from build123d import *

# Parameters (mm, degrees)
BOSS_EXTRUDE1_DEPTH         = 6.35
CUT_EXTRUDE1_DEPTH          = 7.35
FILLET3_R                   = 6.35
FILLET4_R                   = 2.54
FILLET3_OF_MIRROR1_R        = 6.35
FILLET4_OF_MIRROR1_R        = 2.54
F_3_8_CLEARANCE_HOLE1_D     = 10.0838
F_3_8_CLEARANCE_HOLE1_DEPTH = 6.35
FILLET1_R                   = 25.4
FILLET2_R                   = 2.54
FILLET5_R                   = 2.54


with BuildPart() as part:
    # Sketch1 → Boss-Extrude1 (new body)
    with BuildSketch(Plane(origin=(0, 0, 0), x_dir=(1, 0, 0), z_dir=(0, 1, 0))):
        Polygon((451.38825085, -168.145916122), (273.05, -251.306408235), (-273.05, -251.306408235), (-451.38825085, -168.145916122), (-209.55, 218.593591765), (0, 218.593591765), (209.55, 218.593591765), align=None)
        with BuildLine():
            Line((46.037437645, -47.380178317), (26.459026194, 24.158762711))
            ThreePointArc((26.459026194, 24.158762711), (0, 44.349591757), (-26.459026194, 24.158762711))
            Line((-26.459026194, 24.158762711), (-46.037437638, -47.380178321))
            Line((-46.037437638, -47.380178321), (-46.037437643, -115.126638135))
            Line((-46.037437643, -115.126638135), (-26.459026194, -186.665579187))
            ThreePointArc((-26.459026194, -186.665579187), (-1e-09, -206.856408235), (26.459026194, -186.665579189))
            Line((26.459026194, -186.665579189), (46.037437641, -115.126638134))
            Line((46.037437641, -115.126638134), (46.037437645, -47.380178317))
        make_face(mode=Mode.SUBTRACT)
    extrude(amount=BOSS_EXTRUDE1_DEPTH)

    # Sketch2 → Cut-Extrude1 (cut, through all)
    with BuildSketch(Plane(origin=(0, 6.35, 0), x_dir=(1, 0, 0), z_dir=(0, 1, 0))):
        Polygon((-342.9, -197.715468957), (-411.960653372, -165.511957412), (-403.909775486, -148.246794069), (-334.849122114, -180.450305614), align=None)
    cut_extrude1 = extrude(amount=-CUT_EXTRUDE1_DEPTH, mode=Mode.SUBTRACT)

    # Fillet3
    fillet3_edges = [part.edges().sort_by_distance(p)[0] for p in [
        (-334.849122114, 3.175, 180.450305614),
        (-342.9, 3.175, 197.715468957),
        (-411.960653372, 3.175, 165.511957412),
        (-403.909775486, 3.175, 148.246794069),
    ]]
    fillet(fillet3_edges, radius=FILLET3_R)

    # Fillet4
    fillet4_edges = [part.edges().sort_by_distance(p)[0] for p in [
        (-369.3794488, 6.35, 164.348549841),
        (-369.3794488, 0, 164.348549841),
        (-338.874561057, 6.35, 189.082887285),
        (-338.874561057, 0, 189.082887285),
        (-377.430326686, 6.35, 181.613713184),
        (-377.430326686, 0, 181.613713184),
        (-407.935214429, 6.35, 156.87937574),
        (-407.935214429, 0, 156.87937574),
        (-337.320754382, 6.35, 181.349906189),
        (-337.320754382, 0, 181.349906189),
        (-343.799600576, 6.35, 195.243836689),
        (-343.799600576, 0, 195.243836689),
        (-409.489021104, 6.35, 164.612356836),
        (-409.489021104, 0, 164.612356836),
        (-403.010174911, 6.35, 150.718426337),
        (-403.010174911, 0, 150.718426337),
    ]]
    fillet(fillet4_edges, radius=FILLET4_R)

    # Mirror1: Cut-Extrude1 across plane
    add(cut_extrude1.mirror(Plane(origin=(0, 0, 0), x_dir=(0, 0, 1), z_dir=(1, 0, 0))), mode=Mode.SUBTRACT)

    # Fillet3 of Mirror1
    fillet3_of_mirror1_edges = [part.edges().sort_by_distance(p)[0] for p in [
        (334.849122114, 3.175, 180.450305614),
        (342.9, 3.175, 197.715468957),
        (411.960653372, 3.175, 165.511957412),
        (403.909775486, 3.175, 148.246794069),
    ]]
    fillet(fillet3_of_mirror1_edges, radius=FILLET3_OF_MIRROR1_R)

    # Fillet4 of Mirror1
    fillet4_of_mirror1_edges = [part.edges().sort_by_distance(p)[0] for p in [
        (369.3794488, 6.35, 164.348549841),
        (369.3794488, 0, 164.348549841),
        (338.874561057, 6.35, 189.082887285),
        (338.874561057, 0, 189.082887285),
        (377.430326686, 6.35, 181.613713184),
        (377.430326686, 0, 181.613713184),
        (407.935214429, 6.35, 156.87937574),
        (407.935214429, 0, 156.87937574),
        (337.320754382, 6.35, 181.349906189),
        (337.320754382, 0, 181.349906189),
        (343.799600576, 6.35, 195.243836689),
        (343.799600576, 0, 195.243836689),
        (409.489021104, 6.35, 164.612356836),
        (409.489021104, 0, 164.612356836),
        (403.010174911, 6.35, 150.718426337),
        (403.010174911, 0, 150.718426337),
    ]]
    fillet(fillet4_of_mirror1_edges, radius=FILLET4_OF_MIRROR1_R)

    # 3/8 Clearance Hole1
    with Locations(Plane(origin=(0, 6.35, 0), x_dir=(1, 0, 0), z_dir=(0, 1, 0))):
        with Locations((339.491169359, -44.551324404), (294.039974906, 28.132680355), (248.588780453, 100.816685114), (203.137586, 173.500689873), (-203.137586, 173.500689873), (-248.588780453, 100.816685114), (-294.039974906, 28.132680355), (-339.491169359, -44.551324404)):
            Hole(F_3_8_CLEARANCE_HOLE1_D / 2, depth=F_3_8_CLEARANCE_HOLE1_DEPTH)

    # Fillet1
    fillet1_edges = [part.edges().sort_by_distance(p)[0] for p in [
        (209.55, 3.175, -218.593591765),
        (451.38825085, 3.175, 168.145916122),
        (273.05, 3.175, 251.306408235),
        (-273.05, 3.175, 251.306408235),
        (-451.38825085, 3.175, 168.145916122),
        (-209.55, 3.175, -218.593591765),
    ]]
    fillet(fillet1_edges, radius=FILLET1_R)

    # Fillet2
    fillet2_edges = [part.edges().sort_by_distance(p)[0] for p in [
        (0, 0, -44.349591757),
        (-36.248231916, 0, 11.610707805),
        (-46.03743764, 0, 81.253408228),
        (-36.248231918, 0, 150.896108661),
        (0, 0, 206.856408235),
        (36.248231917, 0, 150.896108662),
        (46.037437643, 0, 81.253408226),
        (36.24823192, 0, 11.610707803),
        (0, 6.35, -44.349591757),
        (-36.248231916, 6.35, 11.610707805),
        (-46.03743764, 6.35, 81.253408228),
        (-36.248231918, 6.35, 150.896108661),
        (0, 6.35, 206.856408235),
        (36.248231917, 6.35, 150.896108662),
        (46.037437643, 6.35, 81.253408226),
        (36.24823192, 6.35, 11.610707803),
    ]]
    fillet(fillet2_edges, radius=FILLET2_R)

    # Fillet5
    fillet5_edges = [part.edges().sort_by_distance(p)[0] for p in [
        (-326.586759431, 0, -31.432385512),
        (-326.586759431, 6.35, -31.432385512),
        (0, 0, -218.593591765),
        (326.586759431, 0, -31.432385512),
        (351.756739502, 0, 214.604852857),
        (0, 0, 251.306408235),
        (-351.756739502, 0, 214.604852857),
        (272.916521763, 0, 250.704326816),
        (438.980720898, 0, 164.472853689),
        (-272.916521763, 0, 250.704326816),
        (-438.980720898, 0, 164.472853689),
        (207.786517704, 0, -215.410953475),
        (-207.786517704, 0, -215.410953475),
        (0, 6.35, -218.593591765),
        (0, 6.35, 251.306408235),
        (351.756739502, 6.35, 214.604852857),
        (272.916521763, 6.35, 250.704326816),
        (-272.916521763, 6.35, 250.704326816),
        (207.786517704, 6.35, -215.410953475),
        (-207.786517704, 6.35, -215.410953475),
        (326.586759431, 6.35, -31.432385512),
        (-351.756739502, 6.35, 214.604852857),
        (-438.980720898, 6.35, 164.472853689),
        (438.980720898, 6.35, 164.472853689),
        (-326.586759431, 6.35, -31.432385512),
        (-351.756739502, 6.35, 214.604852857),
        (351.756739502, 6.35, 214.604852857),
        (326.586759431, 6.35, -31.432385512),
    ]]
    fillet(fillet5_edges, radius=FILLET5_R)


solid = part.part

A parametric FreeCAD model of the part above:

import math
import FreeCAD as App
import Part
import Sketcher
Q = App.Units.Quantity


def edges_at(feature, points):
    """Names of the edges that pass closest to the given points."""
    edges = feature.Shape.Edges
    near = lambda p: min(range(len(edges)), key=lambda i: edges[i].distToShape(Part.Vertex(*p))[0])
    return sorted({f"Edge{near(p) + 1}" for p in points})

doc = App.newDocument("Part")
params = doc.addObject("Spreadsheet::Sheet", "Params")
for row, (alias, value) in enumerate([
    ("sketch1_radius", "1.08 in"),
    ("sketch1_width", "16.5 in"),
    ("sketch1_width2", "21.5 in"),
    ("pad1_length", "0.25 in"),
    ("sketch2_length", "3 in"),
    ("sketch2_length2", "0.75 in"),
    ("fillet_radius", "0.25 in"),
    ("fillet2_radius", "0.1 in"),
    ("fillet3_radius", "0.25 in"),
    ("fillet4_radius", "0.1 in"),
    ("sketch3_diameter", "0.397 in"),
    ("hole_diameter", "0.397 in"),
    ("hole_depth", "0.25 in"),
    ("fillet5_radius", "1 in"),
    ("fillet6_radius", "0.1 in"),
    ("fillet7_radius", "0.1 in"),
], start=1):
    params.set(f"A{row}", alias)
    params.set(f"B{row}", "=" + value)
    params.setAlias(f"B{row}", alias)

body = doc.addObject("PartDesign::Body", "Body")

sketch1 = body.newObject("Sketcher::SketchObject", "Sketch")
sketch1.AttachmentSupport = (doc.getObject("XZ_Plane"), [""])
sketch1.MapMode = "FlatFace"
sketch1.addGeometry([
    Part.LineSegment(App.Vector(273.05, 251.306408, 0), App.Vector(451.388251, 168.145916, 0)),
    Part.LineSegment(App.Vector(451.388251, 168.145916, 0), App.Vector(209.55, -218.593592, 0)),
    Part.LineSegment(App.Vector(209.55, -218.593592, 0), App.Vector(-209.55, -218.593592, 0)),
    Part.LineSegment(App.Vector(-209.55, -218.593592, 0), App.Vector(-451.388251, 168.145916, 0)),
    Part.LineSegment(App.Vector(-451.388251, 168.145916, 0), App.Vector(-273.05, 251.306408, 0)),
    Part.LineSegment(App.Vector(-273.05, 251.306408, 0), App.Vector(273.05, 251.306408, 0)),
    Part.LineSegment(App.Vector(46.037438, 47.380178, 0), App.Vector(46.037438, 115.126638, 0)),
    Part.LineSegment(App.Vector(46.037438, 115.126638, 0), App.Vector(26.459026, 186.665579, 0)),
    Part.ArcOfCircle(Part.Circle(App.Vector(0, 179.424408, 0), App.Vector(0, 0, 1), 27.432), math.radians(15.305642), math.radians(164.694358)),
    Part.LineSegment(App.Vector(-26.459026, 186.665579, 0), App.Vector(-46.037438, 115.126638, 0)),
    Part.LineSegment(App.Vector(-46.037438, 115.126638, 0), App.Vector(-46.037438, 47.380178, 0)),
    Part.LineSegment(App.Vector(-46.037438, 47.380178, 0), App.Vector(-26.459026, -24.158763, 0)),
    Part.ArcOfCircle(Part.Circle(App.Vector(0, -16.917592, 0), App.Vector(0, 0, 1), 27.432), math.radians(-164.694358), math.radians(-15.305642)),
    Part.LineSegment(App.Vector(26.459026, -24.158763, 0), App.Vector(46.037438, 47.380178, 0)),
], False)
sketch1.addConstraint([
    Sketcher.Constraint("Coincident", 0, 2, 1, 1),
    Sketcher.Constraint("Coincident", 1, 2, 2, 1),
    Sketcher.Constraint("Coincident", 2, 2, 3, 1),
    Sketcher.Constraint("Coincident", 3, 2, 4, 1),
    Sketcher.Constraint("Coincident", 4, 2, 5, 1),
    Sketcher.Constraint("Coincident", 5, 2, 0, 1),
    Sketcher.Constraint("Coincident", 6, 2, 7, 1),
    Sketcher.Constraint("Tangent", 7, 2, 8, 1),
    Sketcher.Constraint("Tangent", 8, 2, 9, 1),
    Sketcher.Constraint("Coincident", 9, 2, 10, 1),
    Sketcher.Constraint("Coincident", 10, 2, 11, 1),
    Sketcher.Constraint("Tangent", 11, 2, 12, 1),
    Sketcher.Constraint("Tangent", 12, 2, 13, 1),
    Sketcher.Constraint("Coincident", 13, 2, 6, 1),
    Sketcher.Constraint("Horizontal", 2),
    Sketcher.Constraint("Horizontal", 5),
    Sketcher.Constraint("Vertical", 6),
    Sketcher.Constraint("Vertical", 10),
    Sketcher.Constraint("Equal", 8, 12),
    Sketcher.Constraint("Symmetric", 0, 2, 3, 2, -2),
    Sketcher.Constraint("Symmetric", 7, 2, 8, 2, -2),
    Sketcher.Constraint("Symmetric", 11, 2, 12, 2, -2),
    Sketcher.Constraint("Parallel", 7, 11),
    Sketcher.Constraint("Horizontal", 6, 2, 9, 2),
    Sketcher.Constraint("Equal", 1, 3),
    Sketcher.Constraint("Equal", 0, 4),
    Sketcher.Constraint("Radius", 8, Q("1.08 in")),
    Sketcher.Constraint("DistanceX", 2, 2, 2, 1, Q("16.5 in")),
    Sketcher.Constraint("DistanceX", 5, 1, 5, 2, Q("21.5 in")),
    Sketcher.Constraint("Angle", 0, Q("-25 deg")),
    Sketcher.Constraint("DistanceY", 2, 2, 4, 2, Q("18.5 in")),
    Sketcher.Constraint("DistanceY", 12, 3, 8, 3, Q("7.73 in")),
    Sketcher.Constraint("DistanceY", 1, 2, 12, 3, Q("7.94 in")),
    Sketcher.Constraint("DistanceY", 6, 1, 6, 2, 67.74646),
    Sketcher.Constraint("DistanceX", 3, 2, 0, 2, 902.776502),
    Sketcher.Constraint("DistanceY", 10, 2, 8, 2, 139.285401),
    Sketcher.Constraint("DistanceY", -1, 1, 8, 3, 179.424408),
])
sketch1.setExpression("Constraints[26]", "Params.sketch1_radius")
sketch1.setExpression("Constraints[27]", "Params.sketch1_width")
sketch1.setExpression("Constraints[28]", "Params.sketch1_width2")
pad1 = body.newObject("PartDesign::Pad", "Pad")
pad1.Profile = sketch1
pad1.setExpression("Length", "Params.pad1_length")
pad1.Reversed = True

sketch2 = body.newObject("Sketcher::SketchObject", "Sketch001")
sketch2.AttachmentSupport = (doc.getObject("XZ_Plane"), [""])
sketch2.MapMode = "FlatFace"
sketch2.AttachmentOffset = App.Placement(App.Vector(0, 0, -0.25 * 25.4), App.Rotation())
sketch2.addGeometry([
    Part.LineSegment(App.Vector(-411.960653, 165.511957, 0), App.Vector(-342.9, 197.715469, 0)),
    Part.LineSegment(App.Vector(-342.9, 197.715469, 0), App.Vector(-334.849122, 180.450306, 0)),
    Part.LineSegment(App.Vector(-334.849122, 180.450306, 0), App.Vector(-403.909775, 148.246794, 0)),
    Part.LineSegment(App.Vector(-403.909775, 148.246794, 0), App.Vector(-411.960653, 165.511957, 0)),
], False)
sketch2.addConstraint([
    Sketcher.Constraint("Coincident", 0, 2, 1, 1),
    Sketcher.Constraint("Coincident", 1, 2, 2, 1),
    Sketcher.Constraint("Coincident", 2, 2, 3, 1),
    Sketcher.Constraint("Coincident", 3, 2, 0, 1),
    Sketcher.Constraint("Perpendicular", 0, 1),
    Sketcher.Constraint("Perpendicular", 1, 2),
    Sketcher.Constraint("Perpendicular", 2, 3),
    Sketcher.Constraint("Distance", 0, Q("3 in")),
    Sketcher.Constraint("Angle", 0, Q("25 deg")),
    Sketcher.Constraint("DistanceX", 0, 2, -1, 1, Q("13.5 in")),
    Sketcher.Constraint("Distance", 1, Q("0.75 in")),
    Sketcher.Constraint("DistanceY", -1, 1, 0, 2, 197.715469),
])
sketch2.setExpression("Constraints[7]", "Params.sketch2_length")
sketch2.setExpression("Constraints[10]", "Params.sketch2_length2")
pocket1 = body.newObject("PartDesign::Pocket", "Pocket")
pocket1.Profile = sketch2
pocket1.Type = "ThroughAll"
pocket1.Reversed = True
doc.recompute()

fillet = body.newObject("PartDesign::Fillet", "Fillet")
fillet.Base = (pocket1, edges_at(pocket1, [
    (-334.849, 3.175, 180.45),
    (-342.9, 3.175, 197.715),
    (-411.961, 3.175, 165.512),
    (-403.91, 3.175, 148.247),
]))
fillet.setExpression("Radius", "Params.fillet_radius")
doc.recompute()

fillet2 = body.newObject("PartDesign::Fillet", "Fillet001")
fillet2.Base = (fillet, edges_at(fillet, [
    (-369.379, 6.35, 164.349),
    (-369.379, 0, 164.349),
    (-338.875, 6.35, 189.083),
    (-338.875, 0, 189.083),
    (-377.43, 6.35, 181.614),
    (-377.43, 0, 181.614),
    (-407.935, 6.35, 156.879),
    (-407.935, 0, 156.879),
    (-337.321, 6.35, 181.35),
    (-337.321, 0, 181.35),
    (-343.8, 6.35, 195.244),
    (-343.8, 0, 195.244),
    (-409.489, 6.35, 164.612),
    (-409.489, 0, 164.612),
    (-403.01, 6.35, 150.718),
    (-403.01, 0, 150.718),
]))
fillet2.setExpression("Radius", "Params.fillet2_radius")
doc.recompute()

mirrored = body.newObject("PartDesign::Mirrored", "Mirrored")
mirrored.Originals = [pocket1]
mirrored.MirrorPlane = (doc.getObject("YZ_Plane"), [""])
body.Tip = mirrored
doc.recompute()

fillet3 = body.newObject("PartDesign::Fillet", "Fillet002")
fillet3.Base = (mirrored, edges_at(mirrored, [
    (334.849, 3.175, 180.45),
    (342.9, 3.175, 197.715),
    (411.961, 3.175, 165.512),
    (403.91, 3.175, 148.247),
]))
fillet3.setExpression("Radius", "Params.fillet3_radius")
doc.recompute()

fillet4 = body.newObject("PartDesign::Fillet", "Fillet003")
fillet4.Base = (fillet3, edges_at(fillet3, [
    (369.379, 6.35, 164.349),
    (369.379, 0, 164.349),
    (338.875, 6.35, 189.083),
    (338.875, 0, 189.083),
    (377.43, 6.35, 181.614),
    (377.43, 0, 181.614),
    (407.935, 6.35, 156.879),
    (407.935, 0, 156.879),
    (337.321, 6.35, 181.35),
    (337.321, 0, 181.35),
    (343.8, 6.35, 195.244),
    (343.8, 0, 195.244),
    (409.489, 6.35, 164.612),
    (409.489, 0, 164.612),
    (403.01, 6.35, 150.718),
    (403.01, 0, 150.718),
]))
fillet4.setExpression("Radius", "Params.fillet4_radius")

sketch3 = body.newObject("Sketcher::SketchObject", "Sketch002")
sketch3.AttachmentSupport = (doc.getObject("XZ_Plane"), [""])
sketch3.MapMode = "FlatFace"
sketch3.AttachmentOffset = App.Placement(App.Vector(0, 0, -0.25 * 25.4), App.Rotation())
sketch3.addGeometry([
    Part.Circle(App.Vector(339.491169, 44.551324, 0), App.Vector(0, 0, 1), 5.0419),
    Part.Circle(App.Vector(294.039975, -28.13268, 0), App.Vector(0, 0, 1), 5.0419),
    Part.Circle(App.Vector(248.58878, -100.816685, 0), App.Vector(0, 0, 1), 5.0419),
    Part.Circle(App.Vector(203.137586, -173.50069, 0), App.Vector(0, 0, 1), 5.0419),
    Part.Circle(App.Vector(-203.137586, -173.50069, 0), App.Vector(0, 0, 1), 5.0419),
    Part.Circle(App.Vector(-248.58878, -100.816685, 0), App.Vector(0, 0, 1), 5.0419),
    Part.Circle(App.Vector(-294.039975, -28.13268, 0), App.Vector(0, 0, 1), 5.0419),
    Part.Circle(App.Vector(-339.491169, 44.551324, 0), App.Vector(0, 0, 1), 5.0419),
], False)
sketch3.addConstraint([
    Sketcher.Constraint("Equal", 0, 1),
    Sketcher.Constraint("Equal", 1, 2),
    Sketcher.Constraint("Equal", 2, 3),
    Sketcher.Constraint("Equal", 3, 4),
    Sketcher.Constraint("Equal", 4, 5),
    Sketcher.Constraint("Equal", 5, 6),
    Sketcher.Constraint("Equal", 6, 7),
    Sketcher.Constraint("Symmetric", 3, 3, 4, 3, -2),
    Sketcher.Constraint("Symmetric", 2, 3, 5, 3, -2),
    Sketcher.Constraint("Symmetric", 1, 3, 6, 3, -2),
    Sketcher.Constraint("Symmetric", 0, 3, 7, 3, -2),
    Sketcher.Constraint("Diameter", 0, Q("0.397 in")),
    Sketcher.Constraint("DistanceX", -1, 1, 0, 3, 339.491169),
    Sketcher.Constraint("DistanceY", 1, 3, -1, 1, 28.13268),
    Sketcher.Constraint("DistanceX", -1, 1, 2, 3, 248.58878),
    Sketcher.Constraint("DistanceY", 3, 3, -1, 1, 173.50069),
    Sketcher.Constraint("DistanceY", 2, 3, 0, 3, 145.36801),
    Sketcher.Constraint("DistanceX", 3, 3, 1, 3, 90.902389),
    Sketcher.Constraint("DistanceX", 4, 3, 3, 3, 406.275172),
    Sketcher.Constraint("DistanceY", -1, 1, 0, 3, 44.551324),
])
sketch3.setExpression("Constraints[11]", "Params.sketch3_diameter")
doc.recompute()
hole = body.newObject("PartDesign::Hole", "Hole")
hole.Profile = sketch3
hole.ThreadType = "None"
hole.setExpression("Diameter", "Params.hole_diameter")
hole.DepthType = "Dimension"
hole.setExpression("Depth", "Params.hole_depth")
hole.DrillPoint = "Flat"
hole.Reversed = True
doc.recompute()

fillet5 = body.newObject("PartDesign::Fillet", "Fillet004")
fillet5.Base = (hole, edges_at(hole, [
    (209.55, 3.175, -218.594),
    (451.388, 3.175, 168.146),
    (273.05, 3.175, 251.306),
    (-273.05, 3.175, 251.306),
    (-451.388, 3.175, 168.146),
    (-209.55, 3.175, -218.594),
]))
fillet5.setExpression("Radius", "Params.fillet5_radius")
doc.recompute()

fillet6 = body.newObject("PartDesign::Fillet", "Fillet005")
fillet6.Base = (fillet5, edges_at(fillet5, [
    (0, 0, -44.35),
    (-36.248, 0, 11.611),
    (-46.037, 0, 81.253),
    (-36.248, 0, 150.896),
    (0, 0, 206.856),
    (36.248, 0, 150.896),
    (46.037, 0, 81.253),
    (36.248, 0, 11.611),
    (0, 6.35, -44.35),
    (-36.248, 6.35, 11.611),
    (-46.037, 6.35, 81.253),
    (-36.248, 6.35, 150.896),
    (0, 6.35, 206.856),
    (36.248, 6.35, 150.896),
    (46.037, 6.35, 81.253),
    (36.248, 6.35, 11.611),
]))
fillet6.setExpression("Radius", "Params.fillet6_radius")
doc.recompute()

fillet7 = body.newObject("PartDesign::Fillet", "Fillet006")
fillet7.Base = (fillet6, edges_at(fillet6, [
    (-326.587, 0, -31.432),
    (-326.587, 6.35, -31.432),
    (0, 0, -218.594),
    (326.587, 0, -31.432),
    (351.757, 0, 214.605),
    (0, 0, 251.306),
    (-351.757, 0, 214.605),
    (272.917, 0, 250.704),
    (438.981, 0, 164.473),
    (-272.917, 0, 250.704),
    (-438.981, 0, 164.473),
    (207.787, 0, -215.411),
    (-207.787, 0, -215.411),
    (0, 6.35, -218.594),
    (0, 6.35, 251.306),
    (351.757, 6.35, 214.605),
    (272.917, 6.35, 250.704),
    (-272.917, 6.35, 250.704),
    (207.787, 6.35, -215.411),
    (-207.787, 6.35, -215.411),
    (326.587, 6.35, -31.432),
    (-351.757, 6.35, 214.605),
    (-438.981, 6.35, 164.473),
    (438.981, 6.35, 164.473),
    (-326.587, 6.35, -31.432),
    (-351.757, 6.35, 214.605),
    (351.757, 6.35, 214.605),
    (326.587, 6.35, -31.432),
]))
fillet7.setExpression("Radius", "Params.fillet7_radius")

doc.recompute()
